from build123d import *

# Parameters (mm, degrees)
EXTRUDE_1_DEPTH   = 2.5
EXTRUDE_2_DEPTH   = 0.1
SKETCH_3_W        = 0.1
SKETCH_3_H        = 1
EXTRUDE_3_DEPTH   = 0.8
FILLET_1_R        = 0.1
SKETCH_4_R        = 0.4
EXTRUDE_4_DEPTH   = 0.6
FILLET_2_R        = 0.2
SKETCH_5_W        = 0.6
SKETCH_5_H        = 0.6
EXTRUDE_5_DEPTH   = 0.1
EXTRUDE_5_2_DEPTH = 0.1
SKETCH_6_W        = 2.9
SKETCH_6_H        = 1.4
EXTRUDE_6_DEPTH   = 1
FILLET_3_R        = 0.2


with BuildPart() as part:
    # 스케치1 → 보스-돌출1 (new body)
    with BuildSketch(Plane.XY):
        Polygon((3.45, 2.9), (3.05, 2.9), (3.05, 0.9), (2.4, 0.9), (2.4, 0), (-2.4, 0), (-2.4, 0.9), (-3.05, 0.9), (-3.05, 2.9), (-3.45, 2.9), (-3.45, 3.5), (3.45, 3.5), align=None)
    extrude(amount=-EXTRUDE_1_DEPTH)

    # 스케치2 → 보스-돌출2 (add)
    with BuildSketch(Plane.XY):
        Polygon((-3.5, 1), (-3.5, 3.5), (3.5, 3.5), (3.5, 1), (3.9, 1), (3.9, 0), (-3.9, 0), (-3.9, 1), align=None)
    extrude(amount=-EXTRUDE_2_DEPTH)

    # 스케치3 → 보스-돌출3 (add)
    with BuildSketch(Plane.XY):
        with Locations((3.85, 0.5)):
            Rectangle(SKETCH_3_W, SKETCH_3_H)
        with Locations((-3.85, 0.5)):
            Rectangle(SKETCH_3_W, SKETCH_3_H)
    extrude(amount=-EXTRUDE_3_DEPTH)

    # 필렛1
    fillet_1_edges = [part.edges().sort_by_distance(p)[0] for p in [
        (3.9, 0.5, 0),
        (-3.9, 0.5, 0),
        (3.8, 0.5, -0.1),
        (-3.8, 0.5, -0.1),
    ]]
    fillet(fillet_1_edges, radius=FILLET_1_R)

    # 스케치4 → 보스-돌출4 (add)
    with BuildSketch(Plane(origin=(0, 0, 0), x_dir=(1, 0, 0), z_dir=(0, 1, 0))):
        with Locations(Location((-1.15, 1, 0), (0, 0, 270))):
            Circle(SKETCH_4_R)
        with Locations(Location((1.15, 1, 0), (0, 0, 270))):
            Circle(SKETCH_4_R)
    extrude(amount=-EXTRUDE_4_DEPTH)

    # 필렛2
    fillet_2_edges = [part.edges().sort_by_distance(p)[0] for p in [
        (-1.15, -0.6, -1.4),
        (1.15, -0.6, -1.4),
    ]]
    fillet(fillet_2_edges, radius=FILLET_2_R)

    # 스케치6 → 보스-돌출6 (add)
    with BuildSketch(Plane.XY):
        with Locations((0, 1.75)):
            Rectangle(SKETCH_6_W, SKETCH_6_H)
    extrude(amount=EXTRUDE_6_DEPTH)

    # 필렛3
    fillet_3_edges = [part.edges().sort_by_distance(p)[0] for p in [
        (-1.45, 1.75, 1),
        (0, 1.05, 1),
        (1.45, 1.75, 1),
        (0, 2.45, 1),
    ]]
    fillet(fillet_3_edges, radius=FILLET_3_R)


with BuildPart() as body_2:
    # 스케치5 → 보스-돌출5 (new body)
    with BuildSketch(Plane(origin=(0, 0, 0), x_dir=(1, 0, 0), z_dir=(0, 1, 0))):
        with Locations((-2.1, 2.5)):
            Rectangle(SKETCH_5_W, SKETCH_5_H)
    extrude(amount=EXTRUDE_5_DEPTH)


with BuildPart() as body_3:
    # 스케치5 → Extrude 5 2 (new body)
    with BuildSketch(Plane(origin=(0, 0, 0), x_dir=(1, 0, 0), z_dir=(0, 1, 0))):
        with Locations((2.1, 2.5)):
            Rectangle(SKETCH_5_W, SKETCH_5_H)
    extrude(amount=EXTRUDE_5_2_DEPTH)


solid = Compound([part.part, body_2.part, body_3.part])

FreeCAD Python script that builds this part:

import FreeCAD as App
import Part
import Sketcher

V = App.Vector


def edges_at(feature, points):
    """Names of the edges that pass closest to the given points."""
    edges = feature.Shape.Edges
    near = lambda p: min(range(len(edges)), key=lambda i: edges[i].distToShape(Part.Vertex(*p))[0])
    return sorted({f"Edge{near(p) + 1}" for p in points})

doc = App.newDocument("Part")
params = doc.addObject("Spreadsheet::Sheet", "Params")
for row, (alias, value) in enumerate([
    ("sketch1_height", "2 mm"),
    ("sketch1_width", "0.4 mm"),
    ("sketch1_width2", "6.9 mm"),
    ("sketch1_width3", "4.8 mm"),
    ("sketch1_height2", "0.6 mm"),
    ("pad1_length", "2.5 mm"),
    ("sketch2_width", "7 mm"),
    ("sketch2_height", "1 mm"),
    ("sketch2_width2", "0.4 mm"),
    ("sketch2_height2", "2.5 mm"),
    ("pad2_length", "0.1 mm"),
    ("sketch3_height", "1 mm"),
    ("sketch3_width", "0.1 mm"),
    ("pad3_length", "0.8 mm"),
    ("fillet_radius", "0.1 mm"),
    ("sketch4_diameter", "0.8 mm"),
    ("pad4_length", "0.6 mm"),
    ("fillet2_radius", "0.2 mm"),
    ("sketch5_width", "2.9 mm"),
    ("sketch5_height", "1.4 mm"),
    ("pad5_length", "1 mm"),
    ("fillet3_radius", "0.2 mm"),
    ("sketch6_width", "0.6 mm"),
    ("pad6_length", "0.1 mm"),
    ("sketch7_width", "0.6 mm"),
    ("pad7_length", "0.1 mm"),
], start=1):
    params.set(f"A{row}", alias)
    params.set(f"B{row}", "=" + value)
    params.setAlias(f"B{row}", alias)

body = doc.addObject("PartDesign::Body", "Body")

# Sketch on XY plane
sketch1 = body.newObject("Sketcher::SketchObject", "Sketch")
sketch1.AttachmentSupport = (doc.getObject("XY_Plane"), [""])
sketch1.MapMode = "FlatFace"
sketch1.addGeometry([
    Part.LineSegment(V(3.05, 2.9, 0), V(3.45, 2.9, 0)),  # 0
    Part.LineSegment(V(3.45, 2.9, 0), V(3.45, 3.5, 0)),  # 1
    Part.LineSegment(V(3.45, 3.5, 0), V(-3.45, 3.5, 0)),  # 2
    Part.LineSegment(V(-3.45, 3.5, 0), V(-3.45, 2.9, 0)),  # 3
    Part.LineSegment(V(-3.45, 2.9, 0), V(-3.05, 2.9, 0)),  # 4
    Part.LineSegment(V(-3.05, 2.9, 0), V(-3.05, 0.9, 0)),  # 5
    Part.LineSegment(V(-3.05, 0.9, 0), V(-2.4, 0.9, 0)),  # 6
    Part.LineSegment(V(-2.4, 0.9, 0), V(-2.4, 0, 0)),  # 7
    Part.LineSegment(V(-2.4, 0, 0), V(2.4, 0, 0)),  # 8
    Part.LineSegment(V(2.4, 0, 0), V(2.4, 0.9, 0)),  # 9
    Part.LineSegment(V(2.4, 0.9, 0), V(3.05, 0.9, 0)),  # 10
    Part.LineSegment(V(3.05, 0.9, 0), V(3.05, 2.9, 0)),  # 11
], False)
sketch1.addConstraint([
    Sketcher.Constraint("Coincident", 0, 2, 1, 1),
    Sketcher.Constraint("Coincident", 1, 2, 2, 1),
    Sketcher.Constraint("Coincident", 2, 2, 3, 1),
    Sketcher.Constraint("Coincident", 3, 2, 4, 1),
    Sketcher.Constraint("Coincident", 4, 2, 5, 1),
    Sketcher.Constraint("Coincident", 5, 2, 6, 1),
    Sketcher.Constraint("Coincident", 6, 2, 7, 1),
    Sketcher.Constraint("Coincident", 7, 2, 8, 1),
    Sketcher.Constraint("Coincident", 8, 2, 9, 1),
    Sketcher.Constraint("Coincident", 9, 2, 10, 1),
    Sketcher.Constraint("Coincident", 10, 2, 11, 1),
    Sketcher.Constraint("Coincident", 11, 2, 0, 1),
    Sketcher.Constraint("Horizontal", 0),
    Sketcher.Constraint("Vertical", 1),
    Sketcher.Constraint("Horizontal", 2),
    Sketcher.Constraint("Vertical", 3),
    Sketcher.Constraint("Horizontal", 4),
    Sketcher.Constraint("Vertical", 5),
    Sketcher.Constraint("Horizontal", 6),
    Sketcher.Constraint("Vertical", 7),
    Sketcher.Constraint("Horizontal", 8),
    Sketcher.Constraint("Vertical", 9),
    Sketcher.Constraint("Horizontal", 10),
    Sketcher.Constraint("Vertical", 11),
    Sketcher.Constraint("Symmetric", 7, 2, 8, 2, -1, 1),
    Sketcher.Constraint("Symmetric", 0, 2, 3, 2, -2),
    Sketcher.Constraint("Symmetric", 5, 2, 10, 2, -2),
    Sketcher.Constraint("DistanceY", 5, 2, 5, 1, 2.0),
    Sketcher.Constraint("DistanceX", 0, 1, 0, 2, 0.4),
    Sketcher.Constraint("DistanceX", 2, 2, 2, 1, 6.9),
    Sketcher.Constraint("DistanceX", 8, 1, 8, 2, 4.8),
    Sketcher.Constraint("DistanceY", 1, 1, 1, 2, 0.6),
    Sketcher.Constraint("DistanceY", 7, 2, 7, 1, 0.9),
])
sketch1.setExpression("Constraints[27]", "Params.sketch1_height")
sketch1.setExpression("Constraints[28]", "Params.sketch1_width")
sketch1.setExpression("Constraints[29]", "Params.sketch1_width2")
sketch1.setExpression("Constraints[30]", "Params.sketch1_width3")
sketch1.setExpression("Constraints[31]", "Params.sketch1_height2")
pad1 = body.newObject("PartDesign::Pad", "Pad")
pad1.Profile = sketch1
pad1.setExpression("Length", "Params.pad1_length")
pad1.Reversed = True

# Sketch on XY plane
sketch2 = body.newObject("Sketcher::SketchObject", "Sketch001")
sketch2.AttachmentSupport = (doc.getObject("XY_Plane"), [""])
sketch2.MapMode = "FlatFace"
sketch2.addGeometry([
    Part.LineSegment(V(-3.5, 3.5, 0), V(-3.5, 1, 0)),  # 0
    Part.LineSegment(V(-3.5, 1, 0), V(-3.9, 1, 0)),  # 1
    Part.LineSegment(V(-3.9, 1, 0), V(-3.9, 0, 0)),  # 2
    Part.LineSegment(V(-3.9, 0, 0), V(3.9, 0, 0)),  # 3
    Part.LineSegment(V(3.9, 0, 0), V(3.9, 1, 0)),  # 4
    Part.LineSegment(V(3.9, 1, 0), V(3.5, 1, 0)),  # 5
    Part.LineSegment(V(3.5, 1, 0), V(3.5, 3.5, 0)),  # 6
    Part.LineSegment(V(3.5, 3.5, 0), V(-3.5, 3.5, 0)),  # 7
], False)
sketch2.addConstraint([
    Sketcher.Constraint("Coincident", 0, 2, 1, 1),
    Sketcher.Constraint("Coincident", 1, 2, 2, 1),
    Sketcher.Constraint("Coincident", 2, 2, 3, 1),
    Sketcher.Constraint("Coincident", 3, 2, 4, 1),
    Sketcher.Constraint("Coincident", 4, 2, 5, 1),
    Sketcher.Constraint("Coincident", 5, 2, 6, 1),
    Sketcher.Constraint("Coincident", 6, 2, 7, 1),
    Sketcher.Constraint("Coincident", 7, 2, 0, 1),
    Sketcher.Constraint("Vertical", 0),
    Sketcher.Constraint("Horizontal", 1),
    Sketcher.Constraint("Vertical", 2),
    Sketcher.Constraint("Horizontal", 3),
    Sketcher.Constraint("Vertical", 4),
    Sketcher.Constraint("Horizontal", 5),
    Sketcher.Constraint("Vertical", 6),
    Sketcher.Constraint("Horizontal", 7),
    Sketcher.Constraint("Symmetric", 2, 2, 3, 2, -1, 1),
    Sketcher.Constraint("Symmetric", 0, 2, 5, 2, -2),
    Sketcher.Constraint("DistanceX", 7, 2, 7, 1, 7.0),
    Sketcher.Constraint("DistanceY", 2, 2, 2, 1, 1.0),
    Sketcher.Constraint("DistanceX", 1, 2, 1, 1, 0.4),
    Sketcher.Constraint("DistanceY", 0, 2, 0, 1, 2.5),
])
sketch2.setExpression("Constraints[18]", "Params.sketch2_width")
sketch2.setExpression("Constraints[19]", "Params.sketch2_height")
sketch2.setExpression("Constraints[20]", "Params.sketch2_width2")
sketch2.setExpression("Constraints[21]", "Params.sketch2_height2")
pad2 = body.newObject("PartDesign::Pad", "Pad001")
pad2.Profile = sketch2
pad2.setExpression("Length", "Params.pad2_length")
pad2.Reversed = True

# Sketch on XY plane
sketch3 = body.newObject("Sketcher::SketchObject", "Sketch002")
sketch3.AttachmentSupport = (doc.getObject("XY_Plane"), [""])
sketch3.MapMode = "FlatFace"
sketch3.addGeometry([
    Part.LineSegment(V(3.8, 1, 0), V(3.8, 0, 0)),  # 0
    Part.LineSegment(V(3.8, 0, 0), V(3.9, 0, 0)),  # 1
    Part.LineSegment(V(3.9, 0, 0), V(3.9, 1, 0)),  # 2
    Part.LineSegment(V(3.9, 1, 0), V(3.8, 1, 0)),  # 3
    Part.LineSegment(V(-3.9, 1, 0), V(-3.9, 0, 0)),  # 4
    Part.LineSegment(V(-3.9, 0, 0), V(-3.8, 0, 0)),  # 5
    Part.LineSegment(V(-3.8, 0, 0), V(-3.8, 1, 0)),  # 6
    Part.LineSegment(V(-3.8, 1, 0), V(-3.9, 1, 0)),  # 7
], False)
sketch3.addConstraint([
    Sketcher.Constraint("Coincident", 0, 2, 1, 1),
    Sketcher.Constraint("Coincident", 1, 2, 2, 1),
    Sketcher.Constraint("Coincident", 2, 2, 3, 1),
    Sketcher.Constraint("Coincident", 3, 2, 0, 1),
    Sketcher.Constraint("Coincident", 4, 2, 5, 1),
    Sketcher.Constraint("Coincident", 5, 2, 6, 1),
    Sketcher.Constraint("Coincident", 6, 2, 7, 1),
    Sketcher.Constraint("Coincident", 7, 2, 4, 1),
    Sketcher.Constraint("Vertical", 0),
    Sketcher.Constraint("Horizontal", 1),
    Sketcher.Constraint("Vertical", 2),
    Sketcher.Constraint("Horizontal", 3),
    Sketcher.Constraint("Vertical", 4),
    Sketcher.Constraint("Horizontal", 5),
    Sketcher.Constraint("Vertical", 6),
    Sketcher.Constraint("Horizontal", 7),
    Sketcher.Constraint("Symmetric", 1, 2, 4, 2, -1, 1),
    Sketcher.Constraint("Symmetric", 0, 2, 5, 2, -2),
    Sketcher.Constraint("Horizontal", 3, 2, 6, 2),
    Sketcher.Constraint("DistanceY", 0, 2, 0, 1, 1.0),
    Sketcher.Constraint("DistanceX", 1, 1, 1, 2, 0.1),
    Sketcher.Constraint("DistanceX", -1, 1, 0, 2, 3.8),
])
sketch3.setExpression("Constraints[19]", "Params.sketch3_height")
sketch3.setExpression("Constraints[20]", "Params.sketch3_width")
pad3 = body.newObject("PartDesign::Pad", "Pad002")
pad3.Profile = sketch3
pad3.setExpression("Length", "Params.pad3_length")
pad3.Reversed = True
doc.recompute()

fillet = body.newObject("PartDesign::Fillet", "Fillet")
fillet.Base = (pad3, edges_at(pad3, [
    (3.9, 0.5, 0),
    (-3.9, 0.5, 0),
    (3.8, 0.5, -0.1),
    (-3.8, 0.5, -0.1),
]))
fillet.setExpression("Radius", "Params.fillet_radius")

# Sketch on XZ plane
sketch4 = body.newObject("Sketcher::SketchObject", "Sketch003")
sketch4.AttachmentSupport = (doc.getObject("XZ_Plane"), [""])
sketch4.MapMode = "FlatFace"
sketch4.addGeometry([
    Part.Circle(V(-1.15, -1, 0), V(0, 0, 1), 0.4),
    Part.Circle(V(1.15, -1, 0), V(0, 0, 1), 0.4),
], False)
sketch4.addConstraint([
    Sketcher.Constraint("Equal", 0, 1),
    Sketcher.Constraint("Symmetric", 0, 3, 1, 3, -2),
    Sketcher.Constraint("Diameter", 0, 0.8),
    Sketcher.Constraint("DistanceY", 0, 3, -1, 1, 1.0),
    Sketcher.Constraint("DistanceX", 0, 3, 1, 3, 2.3),
])
sketch4.setExpression("Constraints[2]", "Params.sketch4_diameter")
pad4 = body.newObject("PartDesign::Pad", "Pad003")
pad4.Profile = sketch4
pad4.setExpression("Length", "Params.pad4_length")
doc.recompute()

fillet2 = body.newObject("PartDesign::Fillet", "Fillet001")
fillet2.Base = (pad4, edges_at(pad4, [(-1.15, -0.6, -1.4), (1.15, -0.6, -1.4)]))
fillet2.setExpression("Radius", "Params.fillet2_radius")

# Sketch on XY plane
sketch5 = body.newObject("Sketcher::SketchObject", "Sketch004")
sketch5.AttachmentSupport = (doc.getObject("XY_Plane"), [""])
sketch5.MapMode = "FlatFace"
sketch5.addGeometry([
    Part.LineSegment(V(-1.4, 2.5, 0), V(-1.4, 1.1, 0)),
    Part.LineSegment(V(-1.4, 1.1, 0), V(1.4, 1.1, 0)),
    Part.LineSegment(V(1.4, 1.1, 0), V(1.4, 2.5, 0)),
    Part.LineSegment(V(1.4, 2.5, 0), V(-1.4, 2.5, 0)),
], False)
sketch5.addConstraint([
    Sketcher.Constraint("Coincident", 0, 2, 1, 1),
    Sketcher.Constraint("Coincident", 1, 2, 2, 1),
    Sketcher.Constraint("Coincident", 2, 2, 3, 1),
    Sketcher.Constraint("Coincident", 3, 2, 0, 1),
    Sketcher.Constraint("Vertical", 0),
    Sketcher.Constraint("Horizontal", 1),
    Sketcher.Constraint("Vertical", 2),
    Sketcher.Constraint("Horizontal", 3),
    Sketcher.Constraint("DistanceX", 1, 1, 1, 2, 2.9),
    Sketcher.Constraint("DistanceY", 0, 2, 0, 1, 1.4),
    Sketcher.Constraint("DistanceX", 0, 2, -1, 1, 1.45),
    Sketcher.Constraint("DistanceY", -1, 1, 0, 2, 1.05),
])
sketch5.setExpression("Constraints[8]", "Params.sketch5_width")
sketch5.setExpression("Constraints[9]", "Params.sketch5_height")
pad5 = body.newObject("PartDesign::Pad", "Pad004")
pad5.Profile = sketch5
pad5.setExpression("Length", "Params.pad5_length")
doc.recompute()

fillet3 = body.newObject("PartDesign::Fillet", "Fillet002")
fillet3.Base = (pad5, edges_at(pad5, [
    (-1.45, 1.75, 1),
    (0, 1.05, 1),
    (1.45, 1.75, 1),
    (0, 2.45, 1),
]))
fillet3.setExpression("Radius", "Params.fillet3_radius")
body2 = doc.addObject("PartDesign::Body", "Body001")

# Sketch on XZ plane
sketch6 = body2.newObject("Sketcher::SketchObject", "Sketch005")
sketch6.AttachmentSupport = (doc.getObject("XZ_Plane001"), [""])
sketch6.MapMode = "FlatFace"
sketch6.addGeometry([
    Part.LineSegment(V(-2.4, -2.8, 0), V(-2.4, -2.2, 0)),
    Part.LineSegment(V(-2.4, -2.2, 0), V(-1.8, -2.2, 0)),
    Part.LineSegment(V(-1.8, -2.2, 0), V(-1.8, -2.8, 0)),
    Part.LineSegment(V(-1.8, -2.8, 0), V(-2.4, -2.8, 0)),
], False)
sketch6.addConstraint([
    Sketcher.Constraint("Coincident", 0, 2, 1, 1),
    Sketcher.Constraint("Coincident", 1, 2, 2, 1),
    Sketcher.Constraint("Coincident", 2, 2, 3, 1),
    Sketcher.Constraint("Coincident", 3, 2, 0, 1),
    Sketcher.Constraint("Vertical", 0),
    Sketcher.Constraint("Horizontal", 1),
    Sketcher.Constraint("Vertical", 2),
    Sketcher.Constraint("Horizontal", 3),
    Sketcher.Constraint("Equal", 3, 0),
    Sketcher.Constraint("DistanceX", 1, 1, 1, 2, 0.6),
    Sketcher.Constraint("DistanceX", 0, 2, -1, 1, 2.4),
    Sketcher.Constraint("DistanceY", 0, 2, -1, 1, 2.2),
])
sketch6.setExpression("Constraints[9]", "Params.sketch6_width")
pad6 = body2.newObject("PartDesign::Pad", "Pad005")
pad6.Profile = sketch6
pad6.setExpression("Length", "Params.pad6_length")
pad6.Reversed = True
body3 = doc.addObject("PartDesign::Body", "Body002")

# Sketch on XZ plane
sketch7 = body3.newObject("Sketcher::SketchObject", "Sketch006")
sketch7.AttachmentSupport = (doc.getObject("XZ_Plane002"), [""])
sketch7.MapMode = "FlatFace"
sketch7.addGeometry([
    Part.LineSegment(V(1.8, -2.8, 0), V(1.8, -2.2, 0)),
    Part.LineSegment(V(1.8, -2.2, 0), V(2.4, -2.2, 0)),
    Part.LineSegment(V(2.4, -2.2, 0), V(2.4, -2.8, 0)),
    Part.LineSegment(V(2.4, -2.8, 0), V(1.8, -2.8, 0)),
], False)
sketch7.addConstraint([
    Sketcher.Constraint("Coincident", 0, 2, 1, 1),
    Sketcher.Constraint("Coincident", 1, 2, 2, 1),
    Sketcher.Constraint("Coincident", 2, 2, 3, 1),
    Sketcher.Constraint("Coincident", 3, 2, 0, 1),
    Sketcher.Constraint("Vertical", 0),
    Sketcher.Constraint("Horizontal", 1),
    Sketcher.Constraint("Vertical", 2),
    Sketcher.Constraint("Horizontal", 3),
    Sketcher.Constraint("Equal", 3, 0),
    Sketcher.Constraint("DistanceX", 1, 1, 1, 2, 0.6),
    Sketcher.Constraint("DistanceX", -1, 1, 0, 2, 1.8),
    Sketcher.Constraint("DistanceY", 0, 2, -1, 1, 2.2),
])
sketch7.setExpression("Constraints[9]", "Params.sketch7_width")
pad7 = body3.newObject("PartDesign::Pad", "Pad006")
pad7.Profile = sketch7
pad7.setExpression("Length", "Params.pad7_length")
pad7.Reversed = True

doc.recompute()
